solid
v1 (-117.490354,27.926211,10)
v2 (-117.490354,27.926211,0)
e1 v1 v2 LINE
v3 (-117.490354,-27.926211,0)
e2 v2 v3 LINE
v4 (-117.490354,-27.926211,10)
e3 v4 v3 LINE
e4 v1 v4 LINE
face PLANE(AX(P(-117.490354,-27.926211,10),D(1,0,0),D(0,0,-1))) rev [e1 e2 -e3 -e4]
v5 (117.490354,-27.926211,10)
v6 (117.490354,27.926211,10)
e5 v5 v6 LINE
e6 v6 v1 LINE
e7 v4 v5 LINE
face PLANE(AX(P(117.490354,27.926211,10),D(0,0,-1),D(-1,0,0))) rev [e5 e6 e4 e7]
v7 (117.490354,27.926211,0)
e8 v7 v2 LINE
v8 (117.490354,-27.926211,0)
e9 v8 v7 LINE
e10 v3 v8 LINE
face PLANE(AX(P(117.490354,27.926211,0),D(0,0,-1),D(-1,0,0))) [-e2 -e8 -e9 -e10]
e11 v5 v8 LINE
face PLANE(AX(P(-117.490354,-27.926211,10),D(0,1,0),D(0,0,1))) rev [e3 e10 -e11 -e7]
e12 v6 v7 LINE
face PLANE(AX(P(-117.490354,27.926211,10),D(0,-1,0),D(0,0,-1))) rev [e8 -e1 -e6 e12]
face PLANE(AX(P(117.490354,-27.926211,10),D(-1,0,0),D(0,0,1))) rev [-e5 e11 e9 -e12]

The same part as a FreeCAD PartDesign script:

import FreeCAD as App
import Part
import Sketcher

V = App.Vector

doc = App.newDocument("Part")
body = doc.addObject("PartDesign::Body", "Body")

# Sketch on XY plane
sketch1 = body.newObject("Sketcher::SketchObject", "Sketch")
sketch1.AttachmentSupport = (doc.getObject("XY_Plane"), [""])
sketch1.MapMode = "FlatFace"
sketch1.addGeometry([
    Part.LineSegment(V(-117, 28, 0), V(-117, -28, 0)),
    Part.LineSegment(V(-117, -28, 0), V(117, -28, 0)),
    Part.LineSegment(V(117, -28, 0), V(117, 28, 0)),
    Part.LineSegment(V(117, 28, 0), V(-117, 28, 0)),
], False)
sketch1.addConstraint([
    Sketcher.Constraint("Coincident", 0, 2, 1, 1),
    Sketcher.Constraint("Coincident", 1, 2, 2, 1),
    Sketcher.Constraint("Coincident", 2, 2, 3, 1),
    Sketcher.Constraint("Coincident", 3, 2, 0, 1),
    Sketcher.Constraint("Vertical", 0),
    Sketcher.Constraint("Horizontal", 1),
    Sketcher.Constraint("Vertical", 2),
    Sketcher.Constraint("Horizontal", 3),
    Sketcher.Constraint("Symmetric", 0, 2, 2, 2, -1, 1),
    Sketcher.Constraint("DistanceX", 1, 1, 1, 2, 234.980709),
    Sketcher.Constraint("DistanceY", 0, 2, 0, 1, 55.852422),
])
pad1 = body.newObject("PartDesign::Pad", "Pad")
pad1.Profile = sketch1
pad1.Length = 10

doc.recompute()
